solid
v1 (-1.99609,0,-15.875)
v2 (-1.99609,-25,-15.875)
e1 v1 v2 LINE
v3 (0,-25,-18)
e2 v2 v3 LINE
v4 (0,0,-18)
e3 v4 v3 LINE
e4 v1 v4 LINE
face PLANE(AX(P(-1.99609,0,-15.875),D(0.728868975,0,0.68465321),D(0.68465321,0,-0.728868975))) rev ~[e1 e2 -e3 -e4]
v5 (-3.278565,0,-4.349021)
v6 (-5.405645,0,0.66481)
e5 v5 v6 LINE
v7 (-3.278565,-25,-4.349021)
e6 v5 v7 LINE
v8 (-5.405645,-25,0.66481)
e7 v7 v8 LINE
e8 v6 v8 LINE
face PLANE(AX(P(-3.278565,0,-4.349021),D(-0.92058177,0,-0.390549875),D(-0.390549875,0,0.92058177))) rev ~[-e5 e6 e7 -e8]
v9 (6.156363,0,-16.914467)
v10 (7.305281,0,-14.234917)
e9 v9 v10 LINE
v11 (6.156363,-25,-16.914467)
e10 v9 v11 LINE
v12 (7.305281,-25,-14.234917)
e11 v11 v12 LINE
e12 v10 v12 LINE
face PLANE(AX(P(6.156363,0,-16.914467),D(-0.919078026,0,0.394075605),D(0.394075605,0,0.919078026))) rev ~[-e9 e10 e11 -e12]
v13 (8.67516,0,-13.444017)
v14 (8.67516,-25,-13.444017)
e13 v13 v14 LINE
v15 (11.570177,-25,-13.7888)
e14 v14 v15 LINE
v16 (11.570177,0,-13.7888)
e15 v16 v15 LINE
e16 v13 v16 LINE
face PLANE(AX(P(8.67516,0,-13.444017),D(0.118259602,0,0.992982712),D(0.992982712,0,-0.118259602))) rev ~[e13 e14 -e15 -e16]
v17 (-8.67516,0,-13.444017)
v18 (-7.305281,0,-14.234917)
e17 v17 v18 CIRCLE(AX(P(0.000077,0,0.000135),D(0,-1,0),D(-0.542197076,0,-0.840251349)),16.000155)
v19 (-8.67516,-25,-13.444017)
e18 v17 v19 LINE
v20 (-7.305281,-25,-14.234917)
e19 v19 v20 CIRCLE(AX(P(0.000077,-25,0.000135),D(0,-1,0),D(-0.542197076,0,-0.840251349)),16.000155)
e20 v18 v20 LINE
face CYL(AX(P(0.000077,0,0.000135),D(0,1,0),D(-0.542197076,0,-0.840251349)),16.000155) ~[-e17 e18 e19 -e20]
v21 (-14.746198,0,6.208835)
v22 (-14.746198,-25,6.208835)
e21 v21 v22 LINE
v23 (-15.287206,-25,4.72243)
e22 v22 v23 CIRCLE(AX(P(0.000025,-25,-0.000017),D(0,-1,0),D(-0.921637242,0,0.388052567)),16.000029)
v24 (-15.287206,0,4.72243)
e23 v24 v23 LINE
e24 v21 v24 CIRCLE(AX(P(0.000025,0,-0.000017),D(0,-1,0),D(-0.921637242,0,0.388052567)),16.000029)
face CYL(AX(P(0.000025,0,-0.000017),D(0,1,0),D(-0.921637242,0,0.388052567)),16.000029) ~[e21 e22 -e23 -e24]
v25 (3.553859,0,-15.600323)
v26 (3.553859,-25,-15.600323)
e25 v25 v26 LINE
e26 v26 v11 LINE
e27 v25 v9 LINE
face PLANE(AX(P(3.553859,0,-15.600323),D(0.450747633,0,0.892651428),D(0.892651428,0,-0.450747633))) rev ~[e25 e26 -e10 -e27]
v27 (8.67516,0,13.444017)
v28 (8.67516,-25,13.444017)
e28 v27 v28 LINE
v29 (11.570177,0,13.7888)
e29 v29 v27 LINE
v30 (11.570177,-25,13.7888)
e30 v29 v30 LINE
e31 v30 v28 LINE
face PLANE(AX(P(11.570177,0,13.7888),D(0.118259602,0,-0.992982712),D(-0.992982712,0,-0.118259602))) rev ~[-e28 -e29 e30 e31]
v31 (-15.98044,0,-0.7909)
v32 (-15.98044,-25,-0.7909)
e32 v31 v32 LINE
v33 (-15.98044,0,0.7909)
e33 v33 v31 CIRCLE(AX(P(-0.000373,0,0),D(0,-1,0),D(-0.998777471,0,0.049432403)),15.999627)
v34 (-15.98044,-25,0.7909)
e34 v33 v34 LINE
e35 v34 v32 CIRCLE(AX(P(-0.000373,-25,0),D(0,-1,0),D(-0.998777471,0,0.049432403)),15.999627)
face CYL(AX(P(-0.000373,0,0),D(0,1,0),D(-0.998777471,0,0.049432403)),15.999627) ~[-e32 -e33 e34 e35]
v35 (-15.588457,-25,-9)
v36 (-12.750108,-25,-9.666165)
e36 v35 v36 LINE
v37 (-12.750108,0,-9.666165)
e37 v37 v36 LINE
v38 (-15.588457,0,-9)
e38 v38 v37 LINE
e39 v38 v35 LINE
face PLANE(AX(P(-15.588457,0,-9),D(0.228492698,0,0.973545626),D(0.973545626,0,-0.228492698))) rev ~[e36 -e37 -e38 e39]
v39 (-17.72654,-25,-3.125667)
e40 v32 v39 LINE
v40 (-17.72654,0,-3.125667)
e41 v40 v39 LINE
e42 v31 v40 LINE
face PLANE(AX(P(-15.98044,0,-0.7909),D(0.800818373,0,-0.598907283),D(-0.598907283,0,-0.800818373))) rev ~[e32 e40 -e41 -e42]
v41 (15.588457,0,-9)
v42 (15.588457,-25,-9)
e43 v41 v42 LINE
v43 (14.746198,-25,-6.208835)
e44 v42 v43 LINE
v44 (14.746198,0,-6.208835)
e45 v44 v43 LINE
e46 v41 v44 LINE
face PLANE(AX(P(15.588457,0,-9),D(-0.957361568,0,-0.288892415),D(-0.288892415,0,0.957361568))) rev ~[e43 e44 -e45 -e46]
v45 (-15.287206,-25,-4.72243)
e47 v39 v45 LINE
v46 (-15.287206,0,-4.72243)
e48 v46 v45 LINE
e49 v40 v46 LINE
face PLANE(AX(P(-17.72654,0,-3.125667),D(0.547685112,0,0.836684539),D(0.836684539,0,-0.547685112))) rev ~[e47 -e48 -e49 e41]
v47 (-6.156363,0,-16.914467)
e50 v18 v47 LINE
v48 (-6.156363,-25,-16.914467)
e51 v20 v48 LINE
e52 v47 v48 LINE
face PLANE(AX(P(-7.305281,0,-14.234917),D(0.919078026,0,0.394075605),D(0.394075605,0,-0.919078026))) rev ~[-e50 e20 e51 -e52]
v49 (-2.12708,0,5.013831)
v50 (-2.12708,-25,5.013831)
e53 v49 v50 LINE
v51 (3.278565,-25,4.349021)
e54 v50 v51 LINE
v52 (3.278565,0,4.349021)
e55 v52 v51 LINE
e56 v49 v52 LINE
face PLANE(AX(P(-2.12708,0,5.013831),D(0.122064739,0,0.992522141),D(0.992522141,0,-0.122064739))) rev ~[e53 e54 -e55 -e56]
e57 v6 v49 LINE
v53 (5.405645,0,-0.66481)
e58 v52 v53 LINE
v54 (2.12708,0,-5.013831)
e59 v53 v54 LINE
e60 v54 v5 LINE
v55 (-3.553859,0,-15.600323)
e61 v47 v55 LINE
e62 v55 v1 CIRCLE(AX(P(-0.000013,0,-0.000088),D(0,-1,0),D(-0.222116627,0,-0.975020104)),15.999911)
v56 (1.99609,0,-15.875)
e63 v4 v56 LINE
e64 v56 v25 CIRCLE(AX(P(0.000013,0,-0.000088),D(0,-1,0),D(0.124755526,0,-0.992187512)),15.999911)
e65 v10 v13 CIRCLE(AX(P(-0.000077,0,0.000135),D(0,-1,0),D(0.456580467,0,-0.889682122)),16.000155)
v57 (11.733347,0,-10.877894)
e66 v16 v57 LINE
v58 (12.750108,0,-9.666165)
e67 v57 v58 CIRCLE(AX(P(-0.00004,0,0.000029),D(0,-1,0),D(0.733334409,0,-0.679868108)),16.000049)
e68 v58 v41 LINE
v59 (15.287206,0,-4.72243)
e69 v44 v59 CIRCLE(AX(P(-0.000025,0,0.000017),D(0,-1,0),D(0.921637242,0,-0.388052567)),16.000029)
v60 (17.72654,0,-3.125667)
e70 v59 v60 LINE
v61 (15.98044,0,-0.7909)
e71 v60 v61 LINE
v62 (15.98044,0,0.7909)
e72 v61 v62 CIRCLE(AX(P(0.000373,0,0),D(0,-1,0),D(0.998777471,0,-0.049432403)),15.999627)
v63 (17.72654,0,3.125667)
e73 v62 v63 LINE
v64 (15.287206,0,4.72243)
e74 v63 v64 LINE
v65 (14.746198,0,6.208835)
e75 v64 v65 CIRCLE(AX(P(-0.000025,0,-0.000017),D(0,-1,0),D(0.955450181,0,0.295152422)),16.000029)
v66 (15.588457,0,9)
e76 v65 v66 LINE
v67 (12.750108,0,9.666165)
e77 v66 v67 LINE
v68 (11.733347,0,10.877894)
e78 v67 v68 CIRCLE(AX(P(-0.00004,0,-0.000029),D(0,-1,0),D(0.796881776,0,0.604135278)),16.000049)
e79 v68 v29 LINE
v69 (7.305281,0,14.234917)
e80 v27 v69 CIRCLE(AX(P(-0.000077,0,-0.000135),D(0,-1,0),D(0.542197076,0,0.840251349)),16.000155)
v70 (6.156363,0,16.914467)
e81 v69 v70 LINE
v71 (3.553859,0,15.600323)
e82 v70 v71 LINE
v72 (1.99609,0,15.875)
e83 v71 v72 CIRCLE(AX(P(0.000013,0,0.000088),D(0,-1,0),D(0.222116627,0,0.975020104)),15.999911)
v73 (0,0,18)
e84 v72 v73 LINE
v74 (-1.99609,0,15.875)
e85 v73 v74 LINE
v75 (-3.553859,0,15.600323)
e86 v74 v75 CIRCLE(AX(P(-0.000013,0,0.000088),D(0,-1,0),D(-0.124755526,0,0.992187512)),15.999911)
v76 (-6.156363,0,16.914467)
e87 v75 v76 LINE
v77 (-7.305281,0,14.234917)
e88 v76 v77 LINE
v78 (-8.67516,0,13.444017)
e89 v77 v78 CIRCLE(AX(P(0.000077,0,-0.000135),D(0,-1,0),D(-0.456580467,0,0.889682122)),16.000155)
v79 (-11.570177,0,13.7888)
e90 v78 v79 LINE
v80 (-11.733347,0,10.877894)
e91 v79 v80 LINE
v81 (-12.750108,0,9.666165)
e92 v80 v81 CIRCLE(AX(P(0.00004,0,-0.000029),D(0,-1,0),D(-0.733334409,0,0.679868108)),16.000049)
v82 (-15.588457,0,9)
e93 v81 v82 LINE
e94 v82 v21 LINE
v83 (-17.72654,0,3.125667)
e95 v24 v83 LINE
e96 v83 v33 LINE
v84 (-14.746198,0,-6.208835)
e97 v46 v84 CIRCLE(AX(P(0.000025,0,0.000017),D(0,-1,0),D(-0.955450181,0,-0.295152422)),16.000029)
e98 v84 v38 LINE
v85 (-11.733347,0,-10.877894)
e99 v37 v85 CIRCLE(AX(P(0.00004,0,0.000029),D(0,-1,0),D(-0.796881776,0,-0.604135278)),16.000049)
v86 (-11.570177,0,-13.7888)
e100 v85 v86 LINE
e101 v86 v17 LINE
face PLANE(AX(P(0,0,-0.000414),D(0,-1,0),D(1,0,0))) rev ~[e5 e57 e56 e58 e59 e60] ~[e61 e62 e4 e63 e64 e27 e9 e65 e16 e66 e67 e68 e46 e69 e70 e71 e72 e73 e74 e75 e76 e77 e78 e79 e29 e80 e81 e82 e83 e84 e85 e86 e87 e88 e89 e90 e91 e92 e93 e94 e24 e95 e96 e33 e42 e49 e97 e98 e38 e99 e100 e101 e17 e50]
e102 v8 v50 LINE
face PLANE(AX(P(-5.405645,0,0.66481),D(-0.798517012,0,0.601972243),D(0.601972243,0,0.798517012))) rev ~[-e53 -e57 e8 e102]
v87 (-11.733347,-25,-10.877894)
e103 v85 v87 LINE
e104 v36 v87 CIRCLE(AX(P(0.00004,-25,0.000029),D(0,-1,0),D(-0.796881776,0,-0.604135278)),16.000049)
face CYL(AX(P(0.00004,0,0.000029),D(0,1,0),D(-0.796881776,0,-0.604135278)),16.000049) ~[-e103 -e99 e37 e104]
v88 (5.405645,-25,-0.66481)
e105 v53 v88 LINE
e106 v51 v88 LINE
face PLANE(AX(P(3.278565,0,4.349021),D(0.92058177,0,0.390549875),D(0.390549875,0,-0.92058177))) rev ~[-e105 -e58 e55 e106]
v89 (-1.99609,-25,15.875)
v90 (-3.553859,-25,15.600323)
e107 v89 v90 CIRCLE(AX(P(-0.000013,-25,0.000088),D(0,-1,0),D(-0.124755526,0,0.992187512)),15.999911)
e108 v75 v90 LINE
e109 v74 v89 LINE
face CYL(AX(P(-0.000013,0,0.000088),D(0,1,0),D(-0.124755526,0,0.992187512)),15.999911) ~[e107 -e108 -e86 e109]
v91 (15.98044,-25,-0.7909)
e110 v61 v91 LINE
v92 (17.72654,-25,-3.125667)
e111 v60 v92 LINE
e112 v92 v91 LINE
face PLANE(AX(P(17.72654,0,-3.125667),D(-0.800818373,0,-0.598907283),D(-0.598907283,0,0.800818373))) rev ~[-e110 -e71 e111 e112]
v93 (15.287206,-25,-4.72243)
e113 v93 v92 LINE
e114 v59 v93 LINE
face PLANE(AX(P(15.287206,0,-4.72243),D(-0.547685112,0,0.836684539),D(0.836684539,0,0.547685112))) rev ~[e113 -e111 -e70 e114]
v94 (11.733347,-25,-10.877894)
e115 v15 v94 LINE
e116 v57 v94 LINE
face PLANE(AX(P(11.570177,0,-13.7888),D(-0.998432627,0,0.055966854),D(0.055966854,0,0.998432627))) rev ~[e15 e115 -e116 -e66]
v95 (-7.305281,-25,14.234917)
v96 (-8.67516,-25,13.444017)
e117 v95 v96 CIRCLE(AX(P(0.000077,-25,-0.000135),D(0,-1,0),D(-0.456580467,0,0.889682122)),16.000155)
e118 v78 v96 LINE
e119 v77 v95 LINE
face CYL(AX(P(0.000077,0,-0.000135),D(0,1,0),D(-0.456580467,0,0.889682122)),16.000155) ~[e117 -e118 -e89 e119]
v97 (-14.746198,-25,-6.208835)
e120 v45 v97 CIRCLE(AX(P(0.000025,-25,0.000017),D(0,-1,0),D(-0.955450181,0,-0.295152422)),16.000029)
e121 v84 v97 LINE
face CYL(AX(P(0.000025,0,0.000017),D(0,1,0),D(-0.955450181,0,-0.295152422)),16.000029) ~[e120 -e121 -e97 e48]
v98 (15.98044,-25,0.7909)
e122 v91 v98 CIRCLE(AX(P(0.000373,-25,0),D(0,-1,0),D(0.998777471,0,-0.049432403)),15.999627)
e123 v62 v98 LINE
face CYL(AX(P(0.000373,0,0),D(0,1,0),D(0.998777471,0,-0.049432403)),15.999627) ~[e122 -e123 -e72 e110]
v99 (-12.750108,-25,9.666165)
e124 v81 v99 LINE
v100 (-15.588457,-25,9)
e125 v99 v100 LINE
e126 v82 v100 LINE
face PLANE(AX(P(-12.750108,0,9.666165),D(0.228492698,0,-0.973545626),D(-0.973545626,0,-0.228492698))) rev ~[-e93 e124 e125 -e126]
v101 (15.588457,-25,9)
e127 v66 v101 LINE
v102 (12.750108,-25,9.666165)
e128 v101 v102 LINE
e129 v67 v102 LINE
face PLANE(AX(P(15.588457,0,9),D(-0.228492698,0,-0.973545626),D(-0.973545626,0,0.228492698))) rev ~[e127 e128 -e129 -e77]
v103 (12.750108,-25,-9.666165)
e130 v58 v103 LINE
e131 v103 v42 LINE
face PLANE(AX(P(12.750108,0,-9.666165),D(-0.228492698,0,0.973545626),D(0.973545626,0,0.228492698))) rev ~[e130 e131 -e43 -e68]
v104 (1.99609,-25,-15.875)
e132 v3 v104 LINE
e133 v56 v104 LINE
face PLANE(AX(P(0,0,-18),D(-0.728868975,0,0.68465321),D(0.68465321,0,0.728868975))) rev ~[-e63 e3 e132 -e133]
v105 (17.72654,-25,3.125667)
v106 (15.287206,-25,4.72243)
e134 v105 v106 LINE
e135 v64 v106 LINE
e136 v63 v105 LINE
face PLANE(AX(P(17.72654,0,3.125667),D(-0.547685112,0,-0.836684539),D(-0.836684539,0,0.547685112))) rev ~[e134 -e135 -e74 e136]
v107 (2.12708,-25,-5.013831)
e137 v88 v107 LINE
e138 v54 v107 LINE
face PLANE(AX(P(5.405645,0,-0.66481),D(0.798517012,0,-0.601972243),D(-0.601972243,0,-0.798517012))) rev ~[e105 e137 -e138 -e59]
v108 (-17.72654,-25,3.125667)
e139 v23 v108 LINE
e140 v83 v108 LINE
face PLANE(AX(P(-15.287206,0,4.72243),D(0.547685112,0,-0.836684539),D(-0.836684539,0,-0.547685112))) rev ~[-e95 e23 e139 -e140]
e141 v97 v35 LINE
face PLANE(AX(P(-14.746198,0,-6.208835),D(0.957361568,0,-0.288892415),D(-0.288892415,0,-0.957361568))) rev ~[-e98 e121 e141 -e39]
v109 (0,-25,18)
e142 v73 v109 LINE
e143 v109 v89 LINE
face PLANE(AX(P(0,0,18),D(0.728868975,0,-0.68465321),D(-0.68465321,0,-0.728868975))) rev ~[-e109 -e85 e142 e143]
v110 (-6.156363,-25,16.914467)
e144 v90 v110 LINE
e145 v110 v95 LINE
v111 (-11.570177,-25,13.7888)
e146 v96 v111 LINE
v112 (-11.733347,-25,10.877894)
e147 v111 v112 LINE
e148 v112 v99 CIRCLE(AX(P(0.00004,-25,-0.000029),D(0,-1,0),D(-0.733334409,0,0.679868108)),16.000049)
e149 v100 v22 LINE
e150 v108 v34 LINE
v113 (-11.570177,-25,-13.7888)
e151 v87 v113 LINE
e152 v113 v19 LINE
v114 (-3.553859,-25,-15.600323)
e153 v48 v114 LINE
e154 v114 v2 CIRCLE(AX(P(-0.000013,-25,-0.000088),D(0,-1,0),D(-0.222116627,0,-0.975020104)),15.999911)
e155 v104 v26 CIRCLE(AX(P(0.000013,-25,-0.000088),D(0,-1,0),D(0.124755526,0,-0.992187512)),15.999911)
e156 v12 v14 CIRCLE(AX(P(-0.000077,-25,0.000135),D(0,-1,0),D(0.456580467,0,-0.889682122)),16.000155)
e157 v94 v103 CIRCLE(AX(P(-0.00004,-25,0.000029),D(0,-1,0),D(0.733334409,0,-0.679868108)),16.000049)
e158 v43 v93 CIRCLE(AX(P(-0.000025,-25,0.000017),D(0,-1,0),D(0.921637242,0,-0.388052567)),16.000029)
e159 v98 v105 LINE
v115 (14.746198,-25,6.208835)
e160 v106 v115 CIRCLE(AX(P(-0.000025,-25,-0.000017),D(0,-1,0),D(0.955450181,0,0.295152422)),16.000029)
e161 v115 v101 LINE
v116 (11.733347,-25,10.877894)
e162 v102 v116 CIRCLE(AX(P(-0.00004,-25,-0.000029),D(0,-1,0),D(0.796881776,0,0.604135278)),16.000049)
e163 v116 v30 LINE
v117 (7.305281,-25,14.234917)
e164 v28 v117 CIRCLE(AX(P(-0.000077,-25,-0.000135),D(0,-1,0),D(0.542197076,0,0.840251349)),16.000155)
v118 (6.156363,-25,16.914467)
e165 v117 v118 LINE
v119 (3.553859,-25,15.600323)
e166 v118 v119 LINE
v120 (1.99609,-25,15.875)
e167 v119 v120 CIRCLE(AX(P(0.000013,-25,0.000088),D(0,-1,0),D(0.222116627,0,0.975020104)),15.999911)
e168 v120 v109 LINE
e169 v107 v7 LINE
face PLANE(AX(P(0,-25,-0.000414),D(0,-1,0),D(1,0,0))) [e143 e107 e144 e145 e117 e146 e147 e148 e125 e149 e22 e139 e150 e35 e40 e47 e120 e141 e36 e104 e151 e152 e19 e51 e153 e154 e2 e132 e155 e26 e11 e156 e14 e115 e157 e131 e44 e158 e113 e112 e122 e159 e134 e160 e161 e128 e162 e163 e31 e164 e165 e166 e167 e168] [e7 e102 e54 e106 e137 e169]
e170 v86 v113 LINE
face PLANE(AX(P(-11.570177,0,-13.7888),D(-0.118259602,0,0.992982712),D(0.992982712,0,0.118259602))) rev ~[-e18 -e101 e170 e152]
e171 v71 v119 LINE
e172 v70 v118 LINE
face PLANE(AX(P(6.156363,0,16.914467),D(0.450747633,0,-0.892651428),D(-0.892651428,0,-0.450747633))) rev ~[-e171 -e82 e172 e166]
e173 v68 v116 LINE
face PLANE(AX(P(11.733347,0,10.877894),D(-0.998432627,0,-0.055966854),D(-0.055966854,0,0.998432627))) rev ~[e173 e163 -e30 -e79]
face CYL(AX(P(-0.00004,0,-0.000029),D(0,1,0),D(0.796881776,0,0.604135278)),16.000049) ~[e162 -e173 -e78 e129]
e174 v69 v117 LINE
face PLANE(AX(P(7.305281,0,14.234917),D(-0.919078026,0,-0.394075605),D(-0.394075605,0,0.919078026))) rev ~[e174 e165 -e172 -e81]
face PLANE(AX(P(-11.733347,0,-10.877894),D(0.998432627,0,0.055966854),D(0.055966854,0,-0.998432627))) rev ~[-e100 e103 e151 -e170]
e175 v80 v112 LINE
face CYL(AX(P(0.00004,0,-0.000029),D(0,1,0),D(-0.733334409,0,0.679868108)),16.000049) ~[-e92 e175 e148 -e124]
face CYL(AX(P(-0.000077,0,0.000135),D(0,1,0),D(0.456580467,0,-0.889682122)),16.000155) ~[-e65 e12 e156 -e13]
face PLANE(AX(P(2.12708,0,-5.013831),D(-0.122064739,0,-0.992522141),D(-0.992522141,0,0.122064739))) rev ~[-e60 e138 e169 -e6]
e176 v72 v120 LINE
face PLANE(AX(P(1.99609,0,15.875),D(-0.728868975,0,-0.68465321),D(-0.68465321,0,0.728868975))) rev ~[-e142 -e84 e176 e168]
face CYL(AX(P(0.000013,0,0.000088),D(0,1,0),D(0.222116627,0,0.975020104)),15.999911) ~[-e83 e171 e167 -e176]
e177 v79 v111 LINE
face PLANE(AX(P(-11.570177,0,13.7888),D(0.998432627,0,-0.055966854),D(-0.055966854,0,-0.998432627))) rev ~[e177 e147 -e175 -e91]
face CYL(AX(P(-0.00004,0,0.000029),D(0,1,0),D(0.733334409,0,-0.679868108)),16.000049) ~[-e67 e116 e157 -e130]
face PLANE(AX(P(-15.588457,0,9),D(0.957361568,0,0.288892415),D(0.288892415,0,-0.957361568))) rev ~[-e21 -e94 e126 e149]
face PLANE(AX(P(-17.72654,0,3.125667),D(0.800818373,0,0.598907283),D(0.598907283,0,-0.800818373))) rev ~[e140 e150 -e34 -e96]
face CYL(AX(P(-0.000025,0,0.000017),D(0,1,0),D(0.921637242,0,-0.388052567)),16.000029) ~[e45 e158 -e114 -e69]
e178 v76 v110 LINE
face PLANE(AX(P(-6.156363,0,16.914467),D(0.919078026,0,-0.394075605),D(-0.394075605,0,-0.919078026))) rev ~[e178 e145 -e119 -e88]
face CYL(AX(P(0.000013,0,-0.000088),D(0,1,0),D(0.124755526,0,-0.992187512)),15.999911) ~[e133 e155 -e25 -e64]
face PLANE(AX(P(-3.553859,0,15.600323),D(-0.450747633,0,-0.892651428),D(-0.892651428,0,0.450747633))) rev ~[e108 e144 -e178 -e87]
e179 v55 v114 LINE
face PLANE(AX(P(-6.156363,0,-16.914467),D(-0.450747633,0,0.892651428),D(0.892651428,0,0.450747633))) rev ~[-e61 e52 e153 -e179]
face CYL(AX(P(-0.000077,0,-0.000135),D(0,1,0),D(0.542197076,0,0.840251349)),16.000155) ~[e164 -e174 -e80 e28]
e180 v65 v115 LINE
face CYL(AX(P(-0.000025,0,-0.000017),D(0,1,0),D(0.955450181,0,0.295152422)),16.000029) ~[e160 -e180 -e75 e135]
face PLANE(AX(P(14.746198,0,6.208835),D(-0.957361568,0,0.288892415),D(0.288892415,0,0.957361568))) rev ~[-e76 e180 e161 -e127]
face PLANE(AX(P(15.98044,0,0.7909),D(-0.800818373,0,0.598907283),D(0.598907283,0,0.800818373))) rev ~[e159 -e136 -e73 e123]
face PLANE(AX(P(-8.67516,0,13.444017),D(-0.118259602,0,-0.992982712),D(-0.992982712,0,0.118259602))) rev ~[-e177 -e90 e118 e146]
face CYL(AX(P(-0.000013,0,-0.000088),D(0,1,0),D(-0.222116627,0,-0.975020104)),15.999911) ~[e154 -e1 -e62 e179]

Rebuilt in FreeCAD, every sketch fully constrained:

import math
import FreeCAD as App
import Part
import Sketcher

doc = App.newDocument("Part")
body = doc.addObject("PartDesign::Body", "Body")

# Sketch on XZ plane
sketch1 = body.newObject("Sketcher::SketchObject", "Sketch")
sketch1.AttachmentSupport = (doc.getObject("XZ_Plane"), [""])
sketch1.MapMode = "FlatFace"
sketch1.addGeometry(Part.ArcOfCircle(Part.Circle(App.Vector(-0.000013, 0.000088, 0), App.Vector(0, 0, 1), 15.999911), math.radians(97.166638), math.radians(102.833383)), False)
sketch1.addGeometry(Part.LineSegment(App.Vector(-3.553859, 15.600323, 0), App.Vector(-6.156363, 16.914467, 0)), False)
sketch1.addGeometry(Part.LineSegment(App.Vector(-6.156363, 16.914467, 0), App.Vector(-7.305281, 14.234917, 0)), False)
sketch1.addGeometry(Part.ArcOfCircle(Part.Circle(App.Vector(0.000077, -0.000135, 0), App.Vector(0, 0, 1), 16.000155), math.radians(117.16667), math.radians(122.833329)), False)
sketch1.addGeometry(Part.LineSegment(App.Vector(-8.67516, 13.444017, 0), App.Vector(-11.570177, 13.7888, 0)), False)
sketch1.addGeometry(Part.LineSegment(App.Vector(-11.570177, 13.7888, 0), App.Vector(-11.733347, 10.877894, 0)), False)
sketch1.addGeometry(Part.ArcOfCircle(Part.Circle(App.Vector(0.00004, -0.000029, 0), App.Vector(0, 0, 1), 16.000049), math.radians(137.166663), math.radians(142.833357)), False)
sketch1.addGeometry(Part.LineSegment(App.Vector(-12.750108, 9.666165, 0), App.Vector(-15.588457, 9, 0)), False)
sketch1.addGeometry(Part.LineSegment(App.Vector(-15.588457, 9, 0), App.Vector(-14.746198, 6.208835, 0)), False)
sketch1.addGeometry(Part.ArcOfCircle(Part.Circle(App.Vector(0.000025, -0.000017, 0), App.Vector(0, 0, 1), 16.000029), math.radians(157.166621), math.radians(162.833322)), False)
sketch1.addGeometry(Part.LineSegment(App.Vector(-15.287206, 4.72243, 0), App.Vector(-17.72654, 3.125667, 0)), False)
sketch1.addGeometry(Part.LineSegment(App.Vector(-17.72654, 3.125667, 0), App.Vector(-15.98044, 0.7909, 0)), False)
sketch1.addGeometry(Part.ArcOfCircle(Part.Circle(App.Vector(-0.000373, 0, 0), App.Vector(0, 0, 1), 15.999627), math.radians(177.166577), math.radians(182.833423)), False)
sketch1.addGeometry(Part.LineSegment(App.Vector(-15.98044, -0.7909, 0), App.Vector(-17.72654, -3.125667, 0)), False)
sketch1.addGeometry(Part.LineSegment(App.Vector(-17.72654, -3.125667, 0), App.Vector(-15.287206, -4.72243, 0)), False)
sketch1.addGeometry(Part.ArcOfCircle(Part.Circle(App.Vector(0.000025, 0.000017, 0), App.Vector(0, 0, 1), 16.000029), math.radians(-162.833322), math.radians(-157.166621)), False)
sketch1.addGeometry(Part.LineSegment(App.Vector(-14.746198, -6.208835, 0), App.Vector(-15.588457, -9, 0)), False)
sketch1.addGeometry(Part.LineSegment(App.Vector(-15.588457, -9, 0), App.Vector(-12.750108, -9.666165, 0)), False)
sketch1.addGeometry(Part.ArcOfCircle(Part.Circle(App.Vector(0.00004, 0.000029, 0), App.Vector(0, 0, 1), 16.000049), math.radians(-142.833357), math.radians(-137.166663)), False)
sketch1.addGeometry(Part.LineSegment(App.Vector(-11.733347, -10.877894, 0), App.Vector(-11.570177, -13.7888, 0)), False)
sketch1.addGeometry(Part.LineSegment(App.Vector(-11.570177, -13.7888, 0), App.Vector(-8.67516, -13.444017, 0)), False)
sketch1.addGeometry(Part.ArcOfCircle(Part.Circle(App.Vector(0.000077, 0.000135, 0), App.Vector(0, 0, 1), 16.000155), math.radians(-122.833329), math.radians(-117.16667)), False)
sketch1.addGeometry(Part.LineSegment(App.Vector(-7.305281, -14.234917, 0), App.Vector(-6.156363, -16.914467, 0)), False)
sketch1.addGeometry(Part.LineSegment(App.Vector(-6.156363, -16.914467, 0), App.Vector(-3.553859, -15.600323, 0)), False)
sketch1.addGeometry(Part.ArcOfCircle(Part.Circle(App.Vector(-0.000013, -0.000088, 0), App.Vector(0, 0, 1), 15.999911), math.radians(-102.833383), math.radians(-97.166638)), False)
sketch1.addGeometry(Part.LineSegment(App.Vector(-1.99609, -15.875, 0), App.Vector(0, -18, 0)), False)
sketch1.addGeometry(Part.LineSegment(App.Vector(0, -18, 0), App.Vector(1.99609, -15.875, 0)), False)
sketch1.addGeometry(Part.ArcOfCircle(Part.Circle(App.Vector(0.000013, -0.000088, 0), App.Vector(0, 0, 1), 15.999911), math.radians(-82.833362), math.radians(-77.166617)), False)
sketch1.addGeometry(Part.LineSegment(App.Vector(3.553859, -15.600323, 0), App.Vector(6.156363, -16.914467, 0)), False)
sketch1.addGeometry(Part.LineSegment(App.Vector(6.156363, -16.914467, 0), App.Vector(7.305281, -14.234917, 0)), False)
sketch1.addGeometry(Part.ArcOfCircle(Part.Circle(App.Vector(-0.000077, 0.000135, 0), App.Vector(0, 0, 1), 16.000155), math.radians(-62.83333), math.radians(-57.166671)), False)
sketch1.addGeometry(Part.LineSegment(App.Vector(8.67516, -13.444017, 0), App.Vector(11.570177, -13.7888, 0)), False)
sketch1.addGeometry(Part.LineSegment(App.Vector(11.570177, -13.7888, 0), App.Vector(11.733347, -10.877894, 0)), False)
sketch1.addGeometry(Part.ArcOfCircle(Part.Circle(App.Vector(-0.00004, 0.000029, 0), App.Vector(0, 0, 1), 16.000049), math.radians(-42.833337), math.radians(-37.166643)), False)
sketch1.addGeometry(Part.LineSegment(App.Vector(12.750108, -9.666165, 0), App.Vector(15.588457, -9, 0)), False)
sketch1.addGeometry(Part.LineSegment(App.Vector(15.588457, -9, 0), App.Vector(14.746198, -6.208835, 0)), False)
sketch1.addGeometry(Part.ArcOfCircle(Part.Circle(App.Vector(-0.000025, 0.000017, 0), App.Vector(0, 0, 1), 16.000029), math.radians(-22.833379), math.radians(-17.166678)), False)
sketch1.addGeometry(Part.LineSegment(App.Vector(15.287206, -4.72243, 0), App.Vector(17.72654, -3.125667, 0)), False)
sketch1.addGeometry(Part.LineSegment(App.Vector(17.72654, -3.125667, 0), App.Vector(15.98044, -0.7909, 0)), False)
sketch1.addGeometry(Part.ArcOfCircle(Part.Circle(App.Vector(0.000373, 0, 0), App.Vector(0, 0, 1), 15.999627), math.radians(-2.833423), math.radians(2.833423)), False)
sketch1.addGeometry(Part.LineSegment(App.Vector(15.98044, 0.7909, 0), App.Vector(17.72654, 3.125667, 0)), False)
sketch1.addGeometry(Part.LineSegment(App.Vector(17.72654, 3.125667, 0), App.Vector(15.287206, 4.72243, 0)), False)
sketch1.addGeometry(Part.ArcOfCircle(Part.Circle(App.Vector(-0.000025, -0.000017, 0), App.Vector(0, 0, 1), 16.000029), math.radians(17.166678), math.radians(22.833379)), False)
sketch1.addGeometry(Part.LineSegment(App.Vector(14.746198, 6.208835, 0), App.Vector(15.588457, 9, 0)), False)
sketch1.addGeometry(Part.LineSegment(App.Vector(15.588457, 9, 0), App.Vector(12.750108, 9.666165, 0)), False)
sketch1.addGeometry(Part.ArcOfCircle(Part.Circle(App.Vector(-0.00004, -0.000029, 0), App.Vector(0, 0, 1), 16.000049), math.radians(37.166643), math.radians(42.833337)), False)
sketch1.addGeometry(Part.LineSegment(App.Vector(11.733347, 10.877894, 0), App.Vector(11.570177, 13.7888, 0)), False)
sketch1.addGeometry(Part.LineSegment(App.Vector(11.570177, 13.7888, 0), App.Vector(8.67516, 13.444017, 0)), False)
sketch1.addGeometry(Part.ArcOfCircle(Part.Circle(App.Vector(-0.000077, -0.000135, 0), App.Vector(0, 0, 1), 16.000155), math.radians(57.166671), math.radians(62.83333)), False)
sketch1.addGeometry(Part.LineSegment(App.Vector(7.305281, 14.234917, 0), App.Vector(6.156363, 16.914467, 0)), False)
sketch1.addGeometry(Part.LineSegment(App.Vector(6.156363, 16.914467, 0), App.Vector(3.553859, 15.600323, 0)), False)
sketch1.addGeometry(Part.ArcOfCircle(Part.Circle(App.Vector(0.000013, 0.000088, 0), App.Vector(0, 0, 1), 15.999911), math.radians(77.166617), math.radians(82.833362)), False)
sketch1.addGeometry(Part.LineSegment(App.Vector(1.99609, 15.875, 0), App.Vector(0, 18, 0)), False)
sketch1.addGeometry(Part.LineSegment(App.Vector(0, 18, 0), App.Vector(-1.99609, 15.875, 0)), False)
sketch1.addGeometry(Part.LineSegment(App.Vector(-5.405645, 0.66481, 0), App.Vector(-2.12708, 5.013831, 0)), False)
sketch1.addGeometry(Part.LineSegment(App.Vector(-2.12708, 5.013831, 0), App.Vector(3.278565, 4.349021, 0)), False)
sketch1.addGeometry(Part.LineSegment(App.Vector(3.278565, 4.349021, 0), App.Vector(5.405645, -0.66481, 0)), False)
sketch1.addGeometry(Part.LineSegment(App.Vector(5.405645, -0.66481, 0), App.Vector(2.12708, -5.013831, 0)), False)
sketch1.addGeometry(Part.LineSegment(App.Vector(2.12708, -5.013831, 0), App.Vector(-3.278565, -4.349021, 0)), False)
sketch1.addGeometry(Part.LineSegment(App.Vector(-3.278565, -4.349021, 0), App.Vector(-5.405645, 0.66481, 0)), False)
sketch1.addConstraint(Sketcher.Constraint("Coincident", 0, 2, 1, 1))
sketch1.addConstraint(Sketcher.Constraint("Coincident", 1, 2, 2, 1))
sketch1.addConstraint(Sketcher.Constraint("Coincident", 2, 2, 3, 1))
sketch1.addConstraint(Sketcher.Constraint("Coincident", 3, 2, 4, 1))
sketch1.addConstraint(Sketcher.Constraint("Coincident", 4, 2, 5, 1))
sketch1.addConstraint(Sketcher.Constraint("Coincident", 5, 2, 6, 1))
sketch1.addConstraint(Sketcher.Constraint("Coincident", 6, 2, 7, 1))
sketch1.addConstraint(Sketcher.Constraint("Coincident", 7, 2, 8, 1))
sketch1.addConstraint(Sketcher.Constraint("Coincident", 8, 2, 9, 1))
sketch1.addConstraint(Sketcher.Constraint("Coincident", 9, 2, 10, 1))
sketch1.addConstraint(Sketcher.Constraint("Coincident", 10, 2, 11, 1))
sketch1.addConstraint(Sketcher.Constraint("Coincident", 11, 2, 12, 1))
sketch1.addConstraint(Sketcher.Constraint("Coincident", 12, 2, 13, 1))
sketch1.addConstraint(Sketcher.Constraint("Coincident", 13, 2, 14, 1))
sketch1.addConstraint(Sketcher.Constraint("Coincident", 14, 2, 15, 1))
sketch1.addConstraint(Sketcher.Constraint("Coincident", 15, 2, 16, 1))
sketch1.addConstraint(Sketcher.Constraint("Coincident", 16, 2, 17, 1))
sketch1.addConstraint(Sketcher.Constraint("Coincident", 17, 2, 18, 1))
sketch1.addConstraint(Sketcher.Constraint("Coincident", 18, 2, 19, 1))
sketch1.addConstraint(Sketcher.Constraint("Coincident", 19, 2, 20, 1))
sketch1.addConstraint(Sketcher.Constraint("Coincident", 20, 2, 21, 1))
sketch1.addConstraint(Sketcher.Constraint("Coincident", 21, 2, 22, 1))
sketch1.addConstraint(Sketcher.Constraint("Coincident", 22, 2, 23, 1))
sketch1.addConstraint(Sketcher.Constraint("Coincident", 23, 2, 24, 1))
sketch1.addConstraint(Sketcher.Constraint("Coincident", 24, 2, 25, 1))
sketch1.addConstraint(Sketcher.Constraint("Coincident", 25, 2, 26, 1))
sketch1.addConstraint(Sketcher.Constraint("Coincident", 26, 2, 27, 1))
sketch1.addConstraint(Sketcher.Constraint("Coincident", 27, 2, 28, 1))
sketch1.addConstraint(Sketcher.Constraint("Coincident", 28, 2, 29, 1))
sketch1.addConstraint(Sketcher.Constraint("Coincident", 29, 2, 30, 1))
sketch1.addConstraint(Sketcher.Constraint("Coincident", 30, 2, 31, 1))
sketch1.addConstraint(Sketcher.Constraint("Coincident", 31, 2, 32, 1))
sketch1.addConstraint(Sketcher.Constraint("Coincident", 32, 2, 33, 1))
sketch1.addConstraint(Sketcher.Constraint("Coincident", 33, 2, 34, 1))
sketch1.addConstraint(Sketcher.Constraint("Coincident", 34, 2, 35, 1))
sketch1.addConstraint(Sketcher.Constraint("Coincident", 35, 2, 36, 1))
sketch1.addConstraint(Sketcher.Constraint("Coincident", 36, 2, 37, 1))
sketch1.addConstraint(Sketcher.Constraint("Coincident", 37, 2, 38, 1))
sketch1.addConstraint(Sketcher.Constraint("Coincident", 38, 2, 39, 1))
sketch1.addConstraint(Sketcher.Constraint("Coincident", 39, 2, 40, 1))
sketch1.addConstraint(Sketcher.Constraint("Coincident", 40, 2, 41, 1))
sketch1.addConstraint(Sketcher.Constraint("Coincident", 41, 2, 42, 1))
sketch1.addConstraint(Sketcher.Constraint("Coincident", 42, 2, 43, 1))
sketch1.addConstraint(Sketcher.Constraint("Coincident", 43, 2, 44, 1))
sketch1.addConstraint(Sketcher.Constraint("Coincident", 44, 2, 45, 1))
sketch1.addConstraint(Sketcher.Constraint("Coincident", 45, 2, 46, 1))
sketch1.addConstraint(Sketcher.Constraint("Coincident", 46, 2, 47, 1))
sketch1.addConstraint(Sketcher.Constraint("Coincident", 47, 2, 48, 1))
sketch1.addConstraint(Sketcher.Constraint("Coincident", 48, 2, 49, 1))
sketch1.addConstraint(Sketcher.Constraint("Coincident", 49, 2, 50, 1))
sketch1.addConstraint(Sketcher.Constraint("Coincident", 50, 2, 51, 1))
sketch1.addConstraint(Sketcher.Constraint("Coincident", 51, 2, 52, 1))
sketch1.addConstraint(Sketcher.Constraint("Coincident", 52, 2, 53, 1))
sketch1.addConstraint(Sketcher.Constraint("Coincident", 53, 2, 0, 1))
sketch1.addConstraint(Sketcher.Constraint("Coincident", 54, 2, 55, 1))
sketch1.addConstraint(Sketcher.Constraint("Coincident", 55, 2, 56, 1))
sketch1.addConstraint(Sketcher.Constraint("Coincident", 56, 2, 57, 1))
sketch1.addConstraint(Sketcher.Constraint("Coincident", 57, 2, 58, 1))
sketch1.addConstraint(Sketcher.Constraint("Coincident", 58, 2, 59, 1))
sketch1.addConstraint(Sketcher.Constraint("Coincident", 59, 2, 54, 1))
sketch1.addConstraint(Sketcher.Constraint("Equal", 9, 15))
sketch1.addConstraint(Sketcher.Constraint("Equal", 6, 18))
sketch1.addConstraint(Sketcher.Constraint("Equal", 3, 21))
sketch1.addConstraint(Sketcher.Constraint("Equal", 0, 24))
sketch1.addConstraint(Sketcher.Constraint("Equal", 24, 27))
sketch1.addConstraint(Sketcher.Constraint("Equal", 21, 30))
sketch1.addConstraint(Sketcher.Constraint("Equal", 18, 33))
sketch1.addConstraint(Sketcher.Constraint("Equal", 15, 36))
sketch1.addConstraint(Sketcher.Constraint("Equal", 12, 39))
sketch1.addConstraint(Sketcher.Constraint("Equal", 36, 42))
sketch1.addConstraint(Sketcher.Constraint("Equal", 33, 45))
sketch1.addConstraint(Sketcher.Constraint("Equal", 30, 48))
sketch1.addConstraint(Sketcher.Constraint("Equal", 27, 51))
sketch1.addConstraint(Sketcher.Constraint("Symmetric", 0, 3, 27, 3, -1, 1))
sketch1.addConstraint(Sketcher.Constraint("Symmetric", 3, 3, 30, 3, -1, 1))
sketch1.addConstraint(Sketcher.Constraint("Symmetric", 6, 3, 33, 3, -1, 1))
sketch1.addConstraint(Sketcher.Constraint("Symmetric", 9, 3, 36, 3, -1, 1))
sketch1.addConstraint(Sketcher.Constraint("Symmetric", 12, 3, 39, 3, -1, 1))
sketch1.addConstraint(Sketcher.Constraint("Symmetric", 15, 3, 42, 3, -1, 1))
sketch1.addConstraint(Sketcher.Constraint("Symmetric", 18, 3, 45, 3, -1, 1))
sketch1.addConstraint(Sketcher.Constraint("Symmetric", 21, 3, 48, 3, -1, 1))
sketch1.addConstraint(Sketcher.Constraint("Symmetric", 24, 3, 51, 3, -1, 1))
sketch1.addConstraint(Sketcher.Constraint("Symmetric", 1, 2, 28, 2, -1, 1))
sketch1.addConstraint(Sketcher.Constraint("Symmetric", 4, 2, 31, 2, -1, 1))
sketch1.addConstraint(Sketcher.Constraint("Symmetric", 7, 2, 34, 2, -1, 1))
sketch1.addConstraint(Sketcher.Constraint("Symmetric", 10, 2, 37, 2, -1, 1))
sketch1.addConstraint(Sketcher.Constraint("Symmetric", 13, 2, 40, 2, -1, 1))
sketch1.addConstraint(Sketcher.Constraint("Symmetric", 16, 2, 43, 2, -1, 1))
sketch1.addConstraint(Sketcher.Constraint("Symmetric", 19, 2, 46, 2, -1, 1))
sketch1.addConstraint(Sketcher.Constraint("Symmetric", 22, 2, 49, 2, -1, 1))
sketch1.addConstraint(Sketcher.Constraint("Symmetric", 25, 2, 52, 2, -1, 1))
sketch1.addConstraint(Sketcher.Constraint("Symmetric", 54, 2, 57, 2, -1, 1))
sketch1.addConstraint(Sketcher.Constraint("Symmetric", 55, 2, 58, 2, -1, 1))
sketch1.addConstraint(Sketcher.Constraint("Symmetric", 56, 2, 59, 2, -1, 1))
sketch1.addConstraint(Sketcher.Constraint("Symmetric", 24, 3, 27, 3, -2))
sketch1.addConstraint(Sketcher.Constraint("Symmetric", 21, 3, 30, 3, -2))
sketch1.addConstraint(Sketcher.Constraint("Symmetric", 18, 3, 33, 3, -2))
sketch1.addConstraint(Sketcher.Constraint("Symmetric", 15, 3, 36, 3, -2))
sketch1.addConstraint(Sketcher.Constraint("Symmetric", 22, 2, 28, 2, -2))
sketch1.addConstraint(Sketcher.Constraint("Symmetric", 19, 2, 31, 2, -2))
sketch1.addConstraint(Sketcher.Constraint("Symmetric", 16, 2, 34, 2, -2))
sketch1.addConstraint(Sketcher.Constraint("Symmetric", 13, 2, 37, 2, -2))
sketch1.addConstraint(Sketcher.Constraint("Symmetric", 12, 2, 38, 2, -2))
sketch1.addConstraint(Sketcher.Constraint("PointOnObject", 25, 2, -2))
sketch1.addConstraint(Sketcher.Constraint("Parallel", 1, 28))
sketch1.addConstraint(Sketcher.Constraint("Parallel", 2, 29))
sketch1.addConstraint(Sketcher.Constraint("Parallel", 4, 31))
sketch1.addConstraint(Sketcher.Constraint("Parallel", 5, 32))
sketch1.addConstraint(Sketcher.Constraint("Parallel", 7, 34))
sketch1.addConstraint(Sketcher.Constraint("Parallel", 8, 35))
sketch1.addConstraint(Sketcher.Constraint("Parallel", 10, 37))
sketch1.addConstraint(Sketcher.Constraint("Parallel", 11, 38))
sketch1.addConstraint(Sketcher.Constraint("Parallel", 13, 40))
sketch1.addConstraint(Sketcher.Constraint("Parallel", 14, 41))
sketch1.addConstraint(Sketcher.Constraint("Parallel", 16, 43))
sketch1.addConstraint(Sketcher.Constraint("Parallel", 17, 44))
sketch1.addConstraint(Sketcher.Constraint("Parallel", 19, 46))
sketch1.addConstraint(Sketcher.Constraint("Parallel", 20, 47))
sketch1.addConstraint(Sketcher.Constraint("Parallel", 22, 49))
sketch1.addConstraint(Sketcher.Constraint("Parallel", 23, 50))
sketch1.addConstraint(Sketcher.Constraint("Parallel", 25, 52))
sketch1.addConstraint(Sketcher.Constraint("Parallel", 26, 53))
sketch1.addConstraint(Sketcher.Constraint("Horizontal", 24, 2, 26, 2))
sketch1.addConstraint(Sketcher.Constraint("Horizontal", 23, 2, 27, 2))
sketch1.addConstraint(Sketcher.Constraint("Horizontal", 21, 2, 29, 2))
sketch1.addConstraint(Sketcher.Constraint("Horizontal", 20, 2, 30, 2))
sketch1.addConstraint(Sketcher.Constraint("Horizontal", 18, 2, 32, 2))
sketch1.addConstraint(Sketcher.Constraint("Horizontal", 17, 2, 33, 2))
sketch1.addConstraint(Sketcher.Constraint("Horizontal", 15, 2, 35, 2))
sketch1.addConstraint(Sketcher.Constraint("Horizontal", 14, 2, 36, 2))
sketch1.addConstraint(Sketcher.Constraint("Equal", 1, 2))
sketch1.addConstraint(Sketcher.Constraint("Equal", 2, 4))
sketch1.addConstraint(Sketcher.Constraint("Equal", 4, 5))
sketch1.addConstraint(Sketcher.Constraint("Equal", 5, 7))
sketch1.addConstraint(Sketcher.Constraint("Equal", 7, 8))
sketch1.addConstraint(Sketcher.Constraint("Equal", 8, 10))
sketch1.addConstraint(Sketcher.Constraint("Equal", 10, 11))
sketch1.addConstraint(Sketcher.Constraint("Equal", 23, 25))
sketch1.addConstraint(Sketcher.Constraint("Equal", 54, 55))
sketch1.addConstraint(Sketcher.Constraint("Equal", 55, 56))
sketch1.addConstraint(Sketcher.Constraint("DistanceY", -1, 1, 7, 2, 9.0))
sketch1.addConstraint(Sketcher.Constraint("DistanceY", 25, 2, -1, 1, 18.0))
sketch1.addConstraint(Sketcher.Constraint("Radius", 0, 15.999911))
sketch1.addConstraint(Sketcher.Constraint("Radius", 6, 16.000049))
sketch1.addConstraint(Sketcher.Constraint("Radius", 9, 16.000029))
sketch1.addConstraint(Sketcher.Constraint("DistanceY", 24, 2, -1, 1, 15.875))
sketch1.addConstraint(Sketcher.Constraint("Radius", 3, 16.000155))
sketch1.addConstraint(Sketcher.Constraint("Radius", 12, 15.999627))
sketch1.addConstraint(Sketcher.Constraint("DistanceY", -1, 1, 4, 2, 13.7888))
sketch1.addConstraint(Sketcher.Constraint("DistanceY", -1, 1, 11, 2, 0.7909))
sketch1.addConstraint(Sketcher.Constraint("DistanceX", 0, 2, -1, 1, 3.553859))
sketch1.addConstraint(Sketcher.Constraint("DistanceX", 2, 2, -1, 1, 7.305281))
sketch1.addConstraint(Sketcher.Constraint("DistanceX", 3, 2, -1, 1, 8.67516))
sketch1.addConstraint(Sketcher.Constraint("DistanceX", 6, 2, -1, 1, 12.750108))
sketch1.addConstraint(Sketcher.Constraint("DistanceY", -1, 1, 9, 2, 4.72243))
sketch1.addConstraint(Sketcher.Constraint("DistanceX", 10, 2, -1, 1, 17.72654))
sketch1.addConstraint(Sketcher.Constraint("DistanceX", 11, 2, -1, 1, 15.98044))
sketch1.addConstraint(Sketcher.Constraint("DistanceX", 24, 2, -1, 1, 1.99609))
sketch1.addConstraint(Sketcher.Constraint("DistanceX", 54, 2, -1, 1, 2.12708))
sketch1.addConstraint(Sketcher.Constraint("DistanceY", -1, 1, 54, 2, 5.013831))
sketch1.addConstraint(Sketcher.Constraint("DistanceY", -1, 1, 55, 2, 4.349021))
sketch1.addConstraint(Sketcher.Constraint("DistanceY", 56, 2, -1, 1, 0.66481))
sketch1.addConstraint(Sketcher.Constraint("DistanceY", 3, 3, -1, 1, 0.000135))
sketch1.addConstraint(Sketcher.Constraint("DistanceY", -1, 1, 0, 2, 15.600323))
sketch1.addConstraint(Sketcher.Constraint("DistanceX", 1, 2, -1, 1, 6.156363))
sketch1.addConstraint(Sketcher.Constraint("DistanceX", 5, 2, -1, 1, 11.733347))
sketch1.addConstraint(Sketcher.Constraint("DistanceY", -1, 1, 6, 2, 9.666165))
sketch1.addConstraint(Sketcher.Constraint("DistanceX", 8, 2, -1, 1, 14.746198))
pad1 = body.newObject("PartDesign::Pad", "Pad")
pad1.Profile = sketch1
pad1.Length = 25

doc.recompute()
